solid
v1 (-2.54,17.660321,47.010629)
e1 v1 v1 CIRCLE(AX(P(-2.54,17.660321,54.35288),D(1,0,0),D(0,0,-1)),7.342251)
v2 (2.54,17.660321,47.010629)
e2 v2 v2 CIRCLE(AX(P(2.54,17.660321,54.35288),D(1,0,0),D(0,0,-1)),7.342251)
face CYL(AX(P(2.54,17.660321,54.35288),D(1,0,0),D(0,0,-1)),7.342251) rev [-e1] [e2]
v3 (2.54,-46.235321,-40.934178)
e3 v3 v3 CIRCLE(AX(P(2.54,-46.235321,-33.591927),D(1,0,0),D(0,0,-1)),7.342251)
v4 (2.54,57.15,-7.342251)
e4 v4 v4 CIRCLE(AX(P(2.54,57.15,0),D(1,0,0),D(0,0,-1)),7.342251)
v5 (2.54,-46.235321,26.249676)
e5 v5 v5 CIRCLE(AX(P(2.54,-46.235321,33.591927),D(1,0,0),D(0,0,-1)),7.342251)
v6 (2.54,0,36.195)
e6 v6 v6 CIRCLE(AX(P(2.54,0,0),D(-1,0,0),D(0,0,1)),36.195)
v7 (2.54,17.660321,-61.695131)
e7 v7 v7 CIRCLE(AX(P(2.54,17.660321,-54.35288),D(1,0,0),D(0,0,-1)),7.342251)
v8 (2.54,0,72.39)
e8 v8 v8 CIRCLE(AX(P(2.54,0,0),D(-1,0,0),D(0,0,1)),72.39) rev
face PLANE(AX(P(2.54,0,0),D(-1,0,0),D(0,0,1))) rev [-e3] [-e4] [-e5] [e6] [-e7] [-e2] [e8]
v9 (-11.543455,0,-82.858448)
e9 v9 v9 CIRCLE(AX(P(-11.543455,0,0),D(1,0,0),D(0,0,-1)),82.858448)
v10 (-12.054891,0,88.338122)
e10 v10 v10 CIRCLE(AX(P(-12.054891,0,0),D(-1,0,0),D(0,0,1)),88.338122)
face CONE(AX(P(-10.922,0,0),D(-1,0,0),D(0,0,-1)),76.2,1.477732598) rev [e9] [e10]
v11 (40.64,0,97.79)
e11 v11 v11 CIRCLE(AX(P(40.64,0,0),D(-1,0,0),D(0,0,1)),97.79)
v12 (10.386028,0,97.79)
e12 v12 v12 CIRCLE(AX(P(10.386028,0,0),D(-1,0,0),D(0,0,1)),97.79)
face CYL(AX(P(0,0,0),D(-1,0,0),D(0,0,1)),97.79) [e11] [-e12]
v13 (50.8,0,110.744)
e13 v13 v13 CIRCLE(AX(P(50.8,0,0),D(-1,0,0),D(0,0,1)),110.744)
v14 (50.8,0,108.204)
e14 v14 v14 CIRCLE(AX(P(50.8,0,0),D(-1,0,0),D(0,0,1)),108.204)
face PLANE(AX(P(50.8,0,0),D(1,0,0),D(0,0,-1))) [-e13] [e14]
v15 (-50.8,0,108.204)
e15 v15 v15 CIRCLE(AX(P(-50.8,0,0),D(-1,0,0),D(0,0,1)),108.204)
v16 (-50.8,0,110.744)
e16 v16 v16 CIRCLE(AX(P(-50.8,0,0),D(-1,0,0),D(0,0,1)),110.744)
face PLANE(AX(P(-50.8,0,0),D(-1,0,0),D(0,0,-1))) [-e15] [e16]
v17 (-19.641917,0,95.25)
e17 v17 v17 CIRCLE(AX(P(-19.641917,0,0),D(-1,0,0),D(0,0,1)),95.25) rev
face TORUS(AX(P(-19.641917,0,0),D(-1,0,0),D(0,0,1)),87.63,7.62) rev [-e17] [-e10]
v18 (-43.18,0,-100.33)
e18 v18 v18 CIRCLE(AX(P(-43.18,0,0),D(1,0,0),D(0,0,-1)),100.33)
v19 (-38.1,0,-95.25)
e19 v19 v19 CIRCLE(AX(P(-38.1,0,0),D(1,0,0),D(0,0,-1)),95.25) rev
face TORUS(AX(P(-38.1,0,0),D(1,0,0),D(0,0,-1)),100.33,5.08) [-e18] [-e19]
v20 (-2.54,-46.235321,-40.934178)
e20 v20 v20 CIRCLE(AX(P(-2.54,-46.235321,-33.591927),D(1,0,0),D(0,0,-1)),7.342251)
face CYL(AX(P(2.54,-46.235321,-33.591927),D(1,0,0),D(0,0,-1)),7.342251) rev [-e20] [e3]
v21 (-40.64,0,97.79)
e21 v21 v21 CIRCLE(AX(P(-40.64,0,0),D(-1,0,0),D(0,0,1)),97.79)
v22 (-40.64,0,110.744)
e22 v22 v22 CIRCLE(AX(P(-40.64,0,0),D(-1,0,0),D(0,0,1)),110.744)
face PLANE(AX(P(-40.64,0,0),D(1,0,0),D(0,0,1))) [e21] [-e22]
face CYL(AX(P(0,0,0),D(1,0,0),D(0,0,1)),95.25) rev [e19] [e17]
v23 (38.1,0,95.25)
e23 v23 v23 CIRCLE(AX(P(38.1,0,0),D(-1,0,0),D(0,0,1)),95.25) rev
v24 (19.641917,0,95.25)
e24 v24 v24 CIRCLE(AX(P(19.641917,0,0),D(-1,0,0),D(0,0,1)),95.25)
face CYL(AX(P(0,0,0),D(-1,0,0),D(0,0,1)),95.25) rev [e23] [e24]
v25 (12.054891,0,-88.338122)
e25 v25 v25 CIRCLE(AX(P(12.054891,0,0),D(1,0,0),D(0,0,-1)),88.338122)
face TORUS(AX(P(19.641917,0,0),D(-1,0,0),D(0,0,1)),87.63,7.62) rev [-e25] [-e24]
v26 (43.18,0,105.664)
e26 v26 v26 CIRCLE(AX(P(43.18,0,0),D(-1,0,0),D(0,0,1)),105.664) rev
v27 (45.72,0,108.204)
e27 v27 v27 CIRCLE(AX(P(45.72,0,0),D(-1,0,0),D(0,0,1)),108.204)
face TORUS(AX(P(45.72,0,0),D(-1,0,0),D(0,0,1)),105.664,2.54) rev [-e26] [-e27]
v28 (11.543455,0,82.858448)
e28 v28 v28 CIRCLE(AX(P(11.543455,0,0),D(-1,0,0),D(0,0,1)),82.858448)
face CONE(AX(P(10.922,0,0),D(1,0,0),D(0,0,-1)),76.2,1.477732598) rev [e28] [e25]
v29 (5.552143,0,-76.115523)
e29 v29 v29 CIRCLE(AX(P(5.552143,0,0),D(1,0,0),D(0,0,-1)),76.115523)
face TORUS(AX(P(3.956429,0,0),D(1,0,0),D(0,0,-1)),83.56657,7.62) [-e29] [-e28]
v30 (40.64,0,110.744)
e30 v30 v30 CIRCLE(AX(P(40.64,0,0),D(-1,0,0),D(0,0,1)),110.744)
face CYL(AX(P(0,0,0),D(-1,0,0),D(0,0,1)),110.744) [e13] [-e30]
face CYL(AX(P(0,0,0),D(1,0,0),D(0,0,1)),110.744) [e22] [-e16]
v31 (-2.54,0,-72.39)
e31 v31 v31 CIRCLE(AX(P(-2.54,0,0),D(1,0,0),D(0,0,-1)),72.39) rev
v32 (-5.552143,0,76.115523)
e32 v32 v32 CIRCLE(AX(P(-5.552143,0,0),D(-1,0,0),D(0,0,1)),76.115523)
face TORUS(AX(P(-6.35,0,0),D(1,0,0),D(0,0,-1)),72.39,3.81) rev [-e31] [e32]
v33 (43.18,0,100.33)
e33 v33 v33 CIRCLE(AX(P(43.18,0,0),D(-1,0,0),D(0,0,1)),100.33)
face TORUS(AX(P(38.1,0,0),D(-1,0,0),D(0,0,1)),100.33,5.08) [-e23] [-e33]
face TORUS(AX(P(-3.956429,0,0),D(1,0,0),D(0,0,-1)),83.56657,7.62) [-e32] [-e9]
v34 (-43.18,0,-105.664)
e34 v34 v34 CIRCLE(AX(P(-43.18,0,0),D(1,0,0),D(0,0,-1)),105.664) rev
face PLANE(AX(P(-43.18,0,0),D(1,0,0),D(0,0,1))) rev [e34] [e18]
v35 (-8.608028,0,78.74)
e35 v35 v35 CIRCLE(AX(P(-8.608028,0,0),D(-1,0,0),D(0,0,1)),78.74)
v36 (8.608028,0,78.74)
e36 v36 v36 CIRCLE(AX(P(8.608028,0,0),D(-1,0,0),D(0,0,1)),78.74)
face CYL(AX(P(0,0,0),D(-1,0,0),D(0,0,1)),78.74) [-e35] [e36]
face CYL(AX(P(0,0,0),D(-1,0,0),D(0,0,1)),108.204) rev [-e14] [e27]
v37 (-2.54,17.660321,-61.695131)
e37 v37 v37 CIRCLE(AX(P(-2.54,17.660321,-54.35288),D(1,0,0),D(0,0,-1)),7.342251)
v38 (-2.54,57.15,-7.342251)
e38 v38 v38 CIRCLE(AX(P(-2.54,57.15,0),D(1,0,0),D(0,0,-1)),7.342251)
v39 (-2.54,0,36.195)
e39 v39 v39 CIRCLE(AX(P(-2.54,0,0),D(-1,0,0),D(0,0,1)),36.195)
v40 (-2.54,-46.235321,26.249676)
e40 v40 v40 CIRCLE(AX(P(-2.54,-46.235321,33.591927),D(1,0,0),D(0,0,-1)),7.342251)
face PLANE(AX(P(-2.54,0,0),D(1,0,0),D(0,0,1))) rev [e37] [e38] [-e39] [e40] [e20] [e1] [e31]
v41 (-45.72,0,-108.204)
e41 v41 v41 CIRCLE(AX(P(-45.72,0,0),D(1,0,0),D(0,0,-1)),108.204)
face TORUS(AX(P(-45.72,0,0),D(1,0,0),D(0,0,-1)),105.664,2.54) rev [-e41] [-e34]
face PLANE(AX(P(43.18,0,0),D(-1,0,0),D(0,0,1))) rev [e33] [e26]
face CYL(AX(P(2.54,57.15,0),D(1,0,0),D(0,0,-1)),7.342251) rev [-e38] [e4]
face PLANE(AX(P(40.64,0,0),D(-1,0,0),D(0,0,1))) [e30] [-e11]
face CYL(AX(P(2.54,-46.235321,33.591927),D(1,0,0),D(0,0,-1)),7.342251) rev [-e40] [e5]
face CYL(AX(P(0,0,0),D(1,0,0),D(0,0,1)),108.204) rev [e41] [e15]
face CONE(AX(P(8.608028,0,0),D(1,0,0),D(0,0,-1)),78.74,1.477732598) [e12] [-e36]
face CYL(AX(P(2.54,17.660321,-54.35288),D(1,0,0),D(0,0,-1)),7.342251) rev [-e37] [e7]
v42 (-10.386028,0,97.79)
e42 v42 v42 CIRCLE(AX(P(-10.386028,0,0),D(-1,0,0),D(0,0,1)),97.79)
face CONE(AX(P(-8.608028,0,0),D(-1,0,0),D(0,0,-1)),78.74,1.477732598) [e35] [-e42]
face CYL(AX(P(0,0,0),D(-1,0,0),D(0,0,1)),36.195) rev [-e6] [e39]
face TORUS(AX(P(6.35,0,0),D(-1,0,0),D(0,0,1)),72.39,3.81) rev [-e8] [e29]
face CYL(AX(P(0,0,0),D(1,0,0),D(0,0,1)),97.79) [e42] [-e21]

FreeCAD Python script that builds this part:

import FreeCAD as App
import Part
import Sketcher

V = App.Vector
Q = App.Units.Quantity


def edges_at(feature, points):
    """Names of the edges that pass closest to the given points."""
    edges = feature.Shape.Edges
    near = lambda p: min(range(len(edges)), key=lambda i: edges[i].distToShape(Part.Vertex(*p))[0])
    return sorted({f"Edge{near(p) + 1}" for p in points})

doc = App.newDocument("Part")
body = doc.addObject("PartDesign::Body", "Body")

# Sketch on XY plane
sketch1 = body.newObject("Sketcher::SketchObject", "Sketch")
sketch1.AttachmentSupport = (doc.getObject("XY_Plane"), [""])
sketch1.MapMode = "FlatFace"
sketch1.addGeometry([
    Part.LineSegment(V(50.8, 110.7, 0), V(40.6, 110.7, 0)),  # 0
    Part.LineSegment(V(40.6, 110.7, 0), V(40.6, 97.8, 0)),  # 1
    Part.LineSegment(V(40.6, 97.8, 0), V(10.4, 97.8, 0)),  # 2
    Part.LineSegment(V(10.4, 97.8, 0), V(8.6, 78.7, 0)),  # 3
    Part.LineSegment(V(8.6, 78.7, 0), V(0, 78.7, 0)),  # 4
    Part.LineSegment(V(0, 78.7, 0), V(0, 36.2, 0)),  # 5
    Part.LineSegment(V(0, 36.2, 0), V(2.5, 36.2, 0)),  # 6
    Part.LineSegment(V(2.5, 36.2, 0), V(2.5, 76.2, 0)),  # 7
    Part.LineSegment(V(2.5, 76.2, 0), V(10.9, 76.2, 0)),  # 8
    Part.LineSegment(V(10.9, 76.2, 0), V(12.7, 95.2, 0)),  # 9
    Part.LineSegment(V(12.7, 95.2, 0), V(43.2, 95.2, 0)),  # 10
    Part.LineSegment(V(43.2, 95.2, 0), V(43.2, 108.2, 0)),  # 11
    Part.LineSegment(V(43.2, 108.2, 0), V(50.8, 108.2, 0)),  # 12
    Part.LineSegment(V(50.8, 108.2, 0), V(50.8, 110.7, 0)),  # 13
], False)
sketch1.addConstraint([
    Sketcher.Constraint("Coincident", 0, 2, 1, 1),
    Sketcher.Constraint("Coincident", 1, 2, 2, 1),
    Sketcher.Constraint("Coincident", 2, 2, 3, 1),
    Sketcher.Constraint("Coincident", 3, 2, 4, 1),
    Sketcher.Constraint("Coincident", 4, 2, 5, 1),
    Sketcher.Constraint("Coincident", 5, 2, 6, 1),
    Sketcher.Constraint("Coincident", 6, 2, 7, 1),
    Sketcher.Constraint("Coincident", 7, 2, 8, 1),
    Sketcher.Constraint("Coincident", 8, 2, 9, 1),
    Sketcher.Constraint("Coincident", 9, 2, 10, 1),
    Sketcher.Constraint("Coincident", 10, 2, 11, 1),
    Sketcher.Constraint("Coincident", 11, 2, 12, 1),
    Sketcher.Constraint("Coincident", 12, 2, 13, 1),
    Sketcher.Constraint("Coincident", 13, 2, 0, 1),
    Sketcher.Constraint("Horizontal", 0),
    Sketcher.Constraint("Vertical", 1),
    Sketcher.Constraint("Horizontal", 2),
    Sketcher.Constraint("Horizontal", 4),
    Sketcher.Constraint("Vertical", 5),
    Sketcher.Constraint("Horizontal", 6),
    Sketcher.Constraint("Vertical", 7),
    Sketcher.Constraint("Horizontal", 8),
    Sketcher.Constraint("Horizontal", 10),
    Sketcher.Constraint("Vertical", 11),
    Sketcher.Constraint("Horizontal", 12),
    Sketcher.Constraint("Vertical", 13),
    Sketcher.Constraint("PointOnObject", 4, 2, -2),
    Sketcher.Constraint("Parallel", 3, 9),
    Sketcher.Constraint("Equal", 1, 11),
    Sketcher.Constraint("Equal", 6, 13),
    Sketcher.Constraint("Equal", 3, 9),
    Sketcher.Constraint("DistanceX", 0, 2, 0, 1, Q("0.4 in")),
    Sketcher.Constraint("DistanceX", 6, 1, 6, 2, Q("0.1 in")),
    Sketcher.Constraint("DistanceX", 10, 1, 10, 2, Q("1.2 in")),
    Sketcher.Constraint("DistanceX", 12, 1, 12, 2, Q("0.3 in")),
    Sketcher.Constraint("DistanceY", -1, 1, 7, 2, Q("3 in")),
    Sketcher.Constraint("DistanceX", -1, 1, 12, 2, Q("2 in")),
    Sketcher.Constraint("DistanceX", 8, 1, 8, 2, Q("0.33 in")),
    Sketcher.Constraint("DistanceY", 1, 2, 1, 1, Q("0.51 in")),
    Sketcher.Constraint("DistanceY", 5, 2, 5, 1, Q("1.675 in")),
    Sketcher.Constraint("DistanceY", -1, 1, 0, 2, Q("4.36 in")),
    Sketcher.Constraint("DistanceX", 2, 2, 2, 1, 30.253972),
])
revolution = body.newObject("PartDesign::Revolution", "Revolution")
revolution.Profile = sketch1
revolution.ReferenceAxis = (sketch1, ["H_Axis"])
revolution.Angle = 360
doc.recompute()

mirrored = body.newObject("PartDesign::Mirrored", "Mirrored")
mirrored.Originals = [revolution]
mirrored.MirrorPlane = (doc.getObject("YZ_Plane"), [""])
body.Tip = mirrored

# Sketch on YZ plane
sketch2 = body.newObject("Sketcher::SketchObject", "Sketch001")
sketch2.AttachmentSupport = (doc.getObject("YZ_Plane"), [""])
sketch2.MapMode = "FlatFace"
sketch2.AttachmentOffset = App.Placement(V(0, 0, 0.1 * 25.4), App.Rotation())
sketch2.addGeometry([
    Part.Circle(V(57, 0, 0), V(0, 0, 1), 7),  # 0
    Part.Circle(V(18, -54, 0), V(0, 0, 1), 7),  # 1
    Part.Circle(V(-46, -34, 0), V(0, 0, 1), 7),  # 2
    Part.Circle(V(-46, 34, 0), V(0, 0, 1), 7),  # 3
    Part.Circle(V(18, 54, 0), V(0, 0, 1), 7),  # 4
], False)
sketch2.addConstraint([
    Sketcher.Constraint("Equal", 0, 1),
    Sketcher.Constraint("Equal", 1, 2),
    Sketcher.Constraint("Equal", 2, 3),
    Sketcher.Constraint("Equal", 3, 4),
    Sketcher.Constraint("Symmetric", 2, 3, 3, 3, -1),
    Sketcher.Constraint("Symmetric", 1, 3, 4, 3, -1),
    Sketcher.Constraint("PointOnObject", 0, 3, -1),
    Sketcher.Constraint("DistanceX", -1, 1, 0, 3, Q("2.25 in")),
    Sketcher.Constraint("Diameter", 0, 14.684502),
    Sketcher.Constraint("DistanceX", -1, 1, 1, 3, 17.660321),
    Sketcher.Constraint("DistanceY", 1, 3, -1, 1, 54.35288),
    Sketcher.Constraint("DistanceX", 2, 3, -1, 1, 46.235321),
    Sketcher.Constraint("DistanceY", 2, 3, -1, 1, 33.591927),
])
doc.recompute()
hole = body.newObject("PartDesign::Hole", "Hole")
hole.Profile = sketch2
hole.ThreadType = "None"
hole.Diameter = 14.684502
hole.DepthType = "ThroughAll"
doc.recompute()

fillet = body.newObject("PartDesign::Fillet", "Fillet")
fillet.Base = (hole, edges_at(hole, [(2.54, 0, -76.2), (-2.54, 0, -76.2)]))
fillet.Radius = Q("0.15 in")
doc.recompute()

fillet2 = body.newObject("PartDesign::Fillet", "Fillet001")
fillet2.Base = (fillet, edges_at(fillet, [
    (12.7, 0, -95.25),
    (10.922, 0, -76.2),
    (-12.7, 0, -95.25),
    (-10.922, 0, -76.2),
]))
fillet2.Radius = Q("0.3 in")
doc.recompute()

fillet3 = body.newObject("PartDesign::Fillet", "Fillet002")
fillet3.Base = (fillet2, edges_at(fillet2, [(43.18, 0, -95.25), (-43.18, 0, -95.25)]))
fillet3.Radius = Q("0.2 in")
doc.recompute()

fillet4 = body.newObject("PartDesign::Fillet", "Fillet003")
fillet4.Base = (fillet3, edges_at(fillet3, [(43.18, 0, -108.204), (-43.18, 0, -108.204)]))
fillet4.Radius = Q("0.1 in")

doc.recompute()
